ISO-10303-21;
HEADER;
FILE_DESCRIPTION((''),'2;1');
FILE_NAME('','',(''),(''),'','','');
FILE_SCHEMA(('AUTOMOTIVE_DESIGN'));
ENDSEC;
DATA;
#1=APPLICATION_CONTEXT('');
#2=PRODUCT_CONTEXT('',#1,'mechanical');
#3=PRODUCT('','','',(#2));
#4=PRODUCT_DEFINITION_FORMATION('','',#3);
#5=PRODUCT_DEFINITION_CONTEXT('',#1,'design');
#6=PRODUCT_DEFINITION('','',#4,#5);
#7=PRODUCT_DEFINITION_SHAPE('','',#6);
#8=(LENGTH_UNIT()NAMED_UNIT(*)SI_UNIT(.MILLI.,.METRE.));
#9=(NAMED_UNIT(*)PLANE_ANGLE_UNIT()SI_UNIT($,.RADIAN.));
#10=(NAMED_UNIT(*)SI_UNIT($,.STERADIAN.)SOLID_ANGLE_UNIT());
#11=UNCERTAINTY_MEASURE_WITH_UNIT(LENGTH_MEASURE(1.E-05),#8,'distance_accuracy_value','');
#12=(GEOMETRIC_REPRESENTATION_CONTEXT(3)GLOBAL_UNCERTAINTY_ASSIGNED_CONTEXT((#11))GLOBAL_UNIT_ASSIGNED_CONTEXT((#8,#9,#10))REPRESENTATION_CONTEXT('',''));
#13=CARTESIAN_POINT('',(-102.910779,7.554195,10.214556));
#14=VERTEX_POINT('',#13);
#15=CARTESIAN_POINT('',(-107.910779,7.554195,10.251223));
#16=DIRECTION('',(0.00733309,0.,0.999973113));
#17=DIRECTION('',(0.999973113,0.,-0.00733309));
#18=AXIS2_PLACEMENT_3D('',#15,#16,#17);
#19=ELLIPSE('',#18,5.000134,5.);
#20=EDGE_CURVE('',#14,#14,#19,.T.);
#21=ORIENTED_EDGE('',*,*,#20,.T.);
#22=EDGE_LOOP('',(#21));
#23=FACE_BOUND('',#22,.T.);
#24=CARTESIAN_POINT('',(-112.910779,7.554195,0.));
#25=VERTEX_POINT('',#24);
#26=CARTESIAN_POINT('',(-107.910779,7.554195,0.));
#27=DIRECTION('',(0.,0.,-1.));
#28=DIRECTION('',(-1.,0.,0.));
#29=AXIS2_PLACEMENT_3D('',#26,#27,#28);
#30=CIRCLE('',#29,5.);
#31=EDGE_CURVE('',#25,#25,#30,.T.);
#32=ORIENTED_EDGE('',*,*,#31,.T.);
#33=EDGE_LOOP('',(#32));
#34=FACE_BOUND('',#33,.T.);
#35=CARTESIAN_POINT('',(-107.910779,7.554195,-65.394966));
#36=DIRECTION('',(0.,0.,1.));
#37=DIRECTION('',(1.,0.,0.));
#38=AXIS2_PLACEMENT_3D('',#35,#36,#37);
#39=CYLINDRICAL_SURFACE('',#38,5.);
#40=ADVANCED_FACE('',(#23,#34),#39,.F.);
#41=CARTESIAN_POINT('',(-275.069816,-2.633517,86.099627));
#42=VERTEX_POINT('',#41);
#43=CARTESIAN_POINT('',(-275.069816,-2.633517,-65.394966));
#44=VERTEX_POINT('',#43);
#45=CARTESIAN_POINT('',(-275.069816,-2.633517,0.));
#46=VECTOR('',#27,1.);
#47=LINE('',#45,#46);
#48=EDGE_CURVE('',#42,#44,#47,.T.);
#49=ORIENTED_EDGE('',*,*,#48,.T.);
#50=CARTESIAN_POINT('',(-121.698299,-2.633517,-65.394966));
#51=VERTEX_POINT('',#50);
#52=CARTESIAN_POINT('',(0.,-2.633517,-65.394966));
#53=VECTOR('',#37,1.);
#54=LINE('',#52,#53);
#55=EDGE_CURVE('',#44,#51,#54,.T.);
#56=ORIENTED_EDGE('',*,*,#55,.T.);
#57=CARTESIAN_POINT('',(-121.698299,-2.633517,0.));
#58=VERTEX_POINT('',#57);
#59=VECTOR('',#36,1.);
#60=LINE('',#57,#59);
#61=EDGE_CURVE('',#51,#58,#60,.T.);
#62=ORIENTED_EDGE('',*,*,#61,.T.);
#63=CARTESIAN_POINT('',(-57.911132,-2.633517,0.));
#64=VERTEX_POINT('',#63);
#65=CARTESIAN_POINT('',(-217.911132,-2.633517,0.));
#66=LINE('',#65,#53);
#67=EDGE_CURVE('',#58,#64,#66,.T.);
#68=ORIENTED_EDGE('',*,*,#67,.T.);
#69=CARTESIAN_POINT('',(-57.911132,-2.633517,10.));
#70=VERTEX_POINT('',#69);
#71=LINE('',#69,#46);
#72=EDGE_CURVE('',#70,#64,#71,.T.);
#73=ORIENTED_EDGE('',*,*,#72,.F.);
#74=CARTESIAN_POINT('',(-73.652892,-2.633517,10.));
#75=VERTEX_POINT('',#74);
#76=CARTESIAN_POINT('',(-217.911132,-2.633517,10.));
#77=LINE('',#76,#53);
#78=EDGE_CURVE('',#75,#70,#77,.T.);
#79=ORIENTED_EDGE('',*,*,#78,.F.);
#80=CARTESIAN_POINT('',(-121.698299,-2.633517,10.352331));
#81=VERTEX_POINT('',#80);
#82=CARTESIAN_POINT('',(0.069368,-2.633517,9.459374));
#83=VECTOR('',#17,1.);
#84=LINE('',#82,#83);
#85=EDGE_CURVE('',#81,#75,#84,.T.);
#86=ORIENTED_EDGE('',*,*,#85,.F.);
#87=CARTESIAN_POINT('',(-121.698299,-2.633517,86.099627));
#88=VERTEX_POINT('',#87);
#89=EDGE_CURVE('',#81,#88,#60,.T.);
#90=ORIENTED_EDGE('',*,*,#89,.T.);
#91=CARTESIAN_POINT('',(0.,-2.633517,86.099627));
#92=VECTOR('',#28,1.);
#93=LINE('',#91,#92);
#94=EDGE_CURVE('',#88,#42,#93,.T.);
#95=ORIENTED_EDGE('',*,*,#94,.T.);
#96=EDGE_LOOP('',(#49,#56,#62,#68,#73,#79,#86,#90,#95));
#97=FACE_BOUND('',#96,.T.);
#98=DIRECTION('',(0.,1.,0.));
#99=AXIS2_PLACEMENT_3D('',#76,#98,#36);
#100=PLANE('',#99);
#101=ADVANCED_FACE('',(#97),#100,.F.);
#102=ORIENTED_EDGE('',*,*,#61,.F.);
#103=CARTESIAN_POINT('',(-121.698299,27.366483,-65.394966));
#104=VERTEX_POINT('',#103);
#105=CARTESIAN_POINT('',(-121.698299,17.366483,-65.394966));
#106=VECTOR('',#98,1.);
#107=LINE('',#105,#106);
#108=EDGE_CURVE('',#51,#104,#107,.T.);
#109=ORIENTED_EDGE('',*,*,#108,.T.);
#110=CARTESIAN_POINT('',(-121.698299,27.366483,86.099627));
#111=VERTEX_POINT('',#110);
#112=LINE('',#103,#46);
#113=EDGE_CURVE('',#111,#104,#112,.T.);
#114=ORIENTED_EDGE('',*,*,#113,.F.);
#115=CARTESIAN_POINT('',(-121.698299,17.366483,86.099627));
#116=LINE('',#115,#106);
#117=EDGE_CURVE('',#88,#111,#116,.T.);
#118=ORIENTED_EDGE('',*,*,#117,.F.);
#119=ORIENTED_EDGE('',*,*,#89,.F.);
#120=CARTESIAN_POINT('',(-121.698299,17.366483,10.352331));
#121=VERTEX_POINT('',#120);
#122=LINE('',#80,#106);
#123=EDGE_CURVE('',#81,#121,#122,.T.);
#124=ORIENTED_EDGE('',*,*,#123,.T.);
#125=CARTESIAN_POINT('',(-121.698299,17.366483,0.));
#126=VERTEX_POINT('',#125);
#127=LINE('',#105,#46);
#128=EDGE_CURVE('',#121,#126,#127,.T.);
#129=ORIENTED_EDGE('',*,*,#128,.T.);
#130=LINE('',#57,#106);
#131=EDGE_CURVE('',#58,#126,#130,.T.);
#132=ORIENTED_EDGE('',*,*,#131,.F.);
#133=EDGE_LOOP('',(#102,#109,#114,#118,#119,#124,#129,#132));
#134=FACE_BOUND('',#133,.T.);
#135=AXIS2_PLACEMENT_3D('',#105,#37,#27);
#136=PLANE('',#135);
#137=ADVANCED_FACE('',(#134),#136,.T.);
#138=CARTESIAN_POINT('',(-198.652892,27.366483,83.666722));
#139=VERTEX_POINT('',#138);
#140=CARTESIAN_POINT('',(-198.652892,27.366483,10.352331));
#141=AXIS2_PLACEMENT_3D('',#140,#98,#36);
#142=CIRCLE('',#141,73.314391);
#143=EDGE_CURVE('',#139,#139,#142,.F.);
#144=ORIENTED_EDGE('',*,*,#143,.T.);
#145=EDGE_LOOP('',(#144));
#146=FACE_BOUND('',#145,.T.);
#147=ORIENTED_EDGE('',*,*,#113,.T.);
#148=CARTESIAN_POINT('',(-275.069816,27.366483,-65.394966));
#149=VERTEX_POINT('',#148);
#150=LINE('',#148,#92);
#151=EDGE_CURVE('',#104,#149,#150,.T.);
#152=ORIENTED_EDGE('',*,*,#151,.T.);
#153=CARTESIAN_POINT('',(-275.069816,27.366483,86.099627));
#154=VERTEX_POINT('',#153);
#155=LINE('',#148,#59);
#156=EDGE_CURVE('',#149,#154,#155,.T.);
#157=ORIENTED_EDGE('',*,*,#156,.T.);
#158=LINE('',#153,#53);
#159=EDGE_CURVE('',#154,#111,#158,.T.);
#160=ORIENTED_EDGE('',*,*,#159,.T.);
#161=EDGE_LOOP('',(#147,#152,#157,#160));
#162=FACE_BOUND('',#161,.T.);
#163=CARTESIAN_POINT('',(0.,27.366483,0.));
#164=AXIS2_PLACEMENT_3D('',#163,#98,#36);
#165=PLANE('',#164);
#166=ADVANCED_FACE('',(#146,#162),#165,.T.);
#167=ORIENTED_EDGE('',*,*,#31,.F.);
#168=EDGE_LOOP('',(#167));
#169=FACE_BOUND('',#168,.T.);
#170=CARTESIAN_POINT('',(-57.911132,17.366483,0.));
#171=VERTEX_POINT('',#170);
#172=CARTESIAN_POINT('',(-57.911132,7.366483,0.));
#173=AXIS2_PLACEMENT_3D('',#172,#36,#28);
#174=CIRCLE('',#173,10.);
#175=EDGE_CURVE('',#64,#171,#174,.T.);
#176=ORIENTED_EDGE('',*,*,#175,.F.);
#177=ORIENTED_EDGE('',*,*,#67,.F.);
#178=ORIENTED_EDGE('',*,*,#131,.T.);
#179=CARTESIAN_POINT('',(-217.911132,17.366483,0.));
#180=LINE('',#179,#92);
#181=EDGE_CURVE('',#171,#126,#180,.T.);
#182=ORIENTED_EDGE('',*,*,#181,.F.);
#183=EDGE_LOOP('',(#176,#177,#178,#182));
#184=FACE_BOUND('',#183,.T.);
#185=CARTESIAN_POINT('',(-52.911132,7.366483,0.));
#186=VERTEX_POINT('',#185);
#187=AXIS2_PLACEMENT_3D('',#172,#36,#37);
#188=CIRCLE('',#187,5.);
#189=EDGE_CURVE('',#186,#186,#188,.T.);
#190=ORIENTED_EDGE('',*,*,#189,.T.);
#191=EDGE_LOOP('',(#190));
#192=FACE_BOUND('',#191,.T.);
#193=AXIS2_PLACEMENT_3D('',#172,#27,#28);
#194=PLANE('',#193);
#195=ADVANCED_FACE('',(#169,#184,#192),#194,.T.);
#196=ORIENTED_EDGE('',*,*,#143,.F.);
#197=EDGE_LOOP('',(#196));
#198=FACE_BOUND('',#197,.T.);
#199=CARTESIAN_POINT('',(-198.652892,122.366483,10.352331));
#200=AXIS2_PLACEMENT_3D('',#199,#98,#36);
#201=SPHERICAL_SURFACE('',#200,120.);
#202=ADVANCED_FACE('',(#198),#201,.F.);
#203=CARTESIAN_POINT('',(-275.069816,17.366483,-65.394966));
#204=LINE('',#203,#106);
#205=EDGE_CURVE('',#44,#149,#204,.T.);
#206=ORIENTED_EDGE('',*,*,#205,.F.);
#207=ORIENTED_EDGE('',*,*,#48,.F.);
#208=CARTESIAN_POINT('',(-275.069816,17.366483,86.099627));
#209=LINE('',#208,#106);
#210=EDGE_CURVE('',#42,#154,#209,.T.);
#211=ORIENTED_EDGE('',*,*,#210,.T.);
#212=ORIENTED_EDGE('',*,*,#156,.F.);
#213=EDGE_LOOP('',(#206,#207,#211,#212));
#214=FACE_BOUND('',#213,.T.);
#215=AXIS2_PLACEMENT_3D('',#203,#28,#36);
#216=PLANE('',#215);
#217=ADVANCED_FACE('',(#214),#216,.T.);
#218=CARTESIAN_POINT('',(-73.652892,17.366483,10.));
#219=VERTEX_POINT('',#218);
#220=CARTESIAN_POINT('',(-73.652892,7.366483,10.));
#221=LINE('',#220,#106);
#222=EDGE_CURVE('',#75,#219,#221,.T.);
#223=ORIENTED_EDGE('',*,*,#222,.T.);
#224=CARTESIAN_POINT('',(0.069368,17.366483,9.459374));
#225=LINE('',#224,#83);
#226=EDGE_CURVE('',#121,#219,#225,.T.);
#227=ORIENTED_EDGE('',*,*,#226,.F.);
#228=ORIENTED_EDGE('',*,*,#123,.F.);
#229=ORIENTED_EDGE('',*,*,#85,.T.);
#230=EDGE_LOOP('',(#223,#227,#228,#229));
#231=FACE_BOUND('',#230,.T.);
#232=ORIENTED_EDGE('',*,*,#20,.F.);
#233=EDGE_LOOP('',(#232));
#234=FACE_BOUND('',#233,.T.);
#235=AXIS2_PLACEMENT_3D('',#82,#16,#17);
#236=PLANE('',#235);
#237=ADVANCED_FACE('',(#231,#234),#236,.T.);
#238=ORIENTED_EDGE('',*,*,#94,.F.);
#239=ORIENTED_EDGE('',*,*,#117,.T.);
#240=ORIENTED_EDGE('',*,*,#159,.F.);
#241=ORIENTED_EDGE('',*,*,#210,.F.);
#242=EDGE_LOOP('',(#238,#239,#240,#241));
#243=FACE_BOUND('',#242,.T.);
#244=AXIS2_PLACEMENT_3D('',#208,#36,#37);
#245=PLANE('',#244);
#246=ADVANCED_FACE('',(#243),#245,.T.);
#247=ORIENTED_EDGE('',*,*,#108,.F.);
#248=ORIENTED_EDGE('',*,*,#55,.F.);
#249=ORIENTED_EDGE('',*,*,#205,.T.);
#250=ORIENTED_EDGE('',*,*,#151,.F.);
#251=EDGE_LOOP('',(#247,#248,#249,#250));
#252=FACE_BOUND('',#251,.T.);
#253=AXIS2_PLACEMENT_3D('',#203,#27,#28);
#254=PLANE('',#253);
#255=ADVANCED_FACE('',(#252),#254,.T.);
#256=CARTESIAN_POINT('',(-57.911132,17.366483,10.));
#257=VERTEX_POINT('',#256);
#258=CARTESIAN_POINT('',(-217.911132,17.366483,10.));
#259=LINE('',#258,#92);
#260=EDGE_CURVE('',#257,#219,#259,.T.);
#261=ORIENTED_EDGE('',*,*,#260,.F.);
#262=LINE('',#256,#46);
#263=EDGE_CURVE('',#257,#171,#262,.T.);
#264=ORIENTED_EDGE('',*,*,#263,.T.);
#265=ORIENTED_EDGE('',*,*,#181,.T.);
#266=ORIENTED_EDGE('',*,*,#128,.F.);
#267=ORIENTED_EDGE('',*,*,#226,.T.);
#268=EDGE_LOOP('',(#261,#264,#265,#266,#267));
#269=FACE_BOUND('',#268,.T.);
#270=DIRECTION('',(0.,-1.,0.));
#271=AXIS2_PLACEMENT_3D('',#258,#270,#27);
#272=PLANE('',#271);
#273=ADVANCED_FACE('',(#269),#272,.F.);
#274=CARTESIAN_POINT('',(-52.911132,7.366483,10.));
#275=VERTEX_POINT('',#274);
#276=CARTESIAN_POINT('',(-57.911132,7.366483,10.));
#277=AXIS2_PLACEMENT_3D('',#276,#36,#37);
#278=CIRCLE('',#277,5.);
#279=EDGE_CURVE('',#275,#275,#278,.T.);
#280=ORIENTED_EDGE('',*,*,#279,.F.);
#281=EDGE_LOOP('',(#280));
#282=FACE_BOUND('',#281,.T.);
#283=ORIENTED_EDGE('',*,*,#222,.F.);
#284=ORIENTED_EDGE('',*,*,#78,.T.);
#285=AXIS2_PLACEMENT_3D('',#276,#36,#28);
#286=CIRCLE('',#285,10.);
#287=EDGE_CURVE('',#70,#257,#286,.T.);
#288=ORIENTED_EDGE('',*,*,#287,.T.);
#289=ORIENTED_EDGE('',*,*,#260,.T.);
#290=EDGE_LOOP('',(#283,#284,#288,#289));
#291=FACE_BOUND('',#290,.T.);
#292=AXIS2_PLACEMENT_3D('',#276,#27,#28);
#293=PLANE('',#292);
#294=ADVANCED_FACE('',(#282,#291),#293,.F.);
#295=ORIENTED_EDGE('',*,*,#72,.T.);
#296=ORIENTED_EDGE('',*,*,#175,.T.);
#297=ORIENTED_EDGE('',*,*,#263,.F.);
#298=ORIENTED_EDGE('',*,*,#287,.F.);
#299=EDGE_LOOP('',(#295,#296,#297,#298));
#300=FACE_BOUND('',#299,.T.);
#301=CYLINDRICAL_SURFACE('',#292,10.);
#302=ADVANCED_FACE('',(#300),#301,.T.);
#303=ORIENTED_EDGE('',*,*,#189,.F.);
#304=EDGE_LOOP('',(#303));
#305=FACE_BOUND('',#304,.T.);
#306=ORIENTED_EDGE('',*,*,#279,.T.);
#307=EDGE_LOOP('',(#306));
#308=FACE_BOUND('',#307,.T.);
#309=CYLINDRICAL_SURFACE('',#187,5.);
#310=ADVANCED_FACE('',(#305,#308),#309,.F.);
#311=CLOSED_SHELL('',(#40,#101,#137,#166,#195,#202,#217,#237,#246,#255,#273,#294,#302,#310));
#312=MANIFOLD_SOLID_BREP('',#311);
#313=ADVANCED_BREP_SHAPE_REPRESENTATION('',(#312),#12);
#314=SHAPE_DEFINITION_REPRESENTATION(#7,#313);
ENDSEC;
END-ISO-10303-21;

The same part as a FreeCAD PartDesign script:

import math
import FreeCAD as App
import Part
import Sketcher

V = App.Vector
Q = App.Units.Quantity


def add_polygon(sketch, points):
    """Adds a closed chain of lines whose ends are joined by coincident constraints."""
    first, n = sketch.GeometryCount, len(points)
    for a, b in zip(points, points[1:] + points[:1]):
        sketch.addGeometry(Part.LineSegment(App.Vector(*a, 0), App.Vector(*b, 0)), False)
    for i in range(n):
        sketch.addConstraint(Sketcher.Constraint("Coincident", first + i, 2, first + (i + 1) % n, 1))

doc = App.newDocument("Part")
params = doc.addObject("Spreadsheet::Sheet", "Params")
for row, (alias, value) in enumerate([
    ("sketch1_radius", "10 mm"),
    ("sketch1_width", "160 mm"),
    ("pad1_length", "10 mm"),
    ("sketch2_diameter", "10 mm"),
    ("pocket1_length", "10 mm"),
    ("sketch3_width", "250 mm"),
    ("pad2_length", "125 mm"),
    ("sketch4_radius", "120 mm"),
    ("groove_angle", "360 deg"),
    ("sketch5_width", "250 mm"),
    ("pocket2_length", "95 mm"),
    ("sketch6_width", "250 mm"),
    ("pocket3_length", "10 mm"),
    ("sketch7_width", "250 mm"),
    ("sketch8_diameter", "10 mm"),
    ("sketch9_diameter", "10 mm"),
], start=1):
    params.set(f"A{row}", alias)
    params.set(f"B{row}", "=" + value)
    params.setAlias(f"B{row}", alias)

body = doc.addObject("PartDesign::Body", "Body")

sketch1 = body.newObject("Sketcher::SketchObject", "Sketch")
sketch1.AttachmentSupport = (doc.getObject("XY_Plane"), [""])
sketch1.MapMode = "FlatFace"
sketch1.addGeometry([
    Part.LineSegment(V(-58, 17, 0), V(-218, 17, 0)),
    Part.LineSegment(V(-218, 17, 0), V(-218, -3, 0)),
    Part.LineSegment(V(-218, -3, 0), V(-58, -3, 0)),
    Part.ArcOfCircle(Part.Circle(V(-58, 7, 0), V(0, 0, 1), 10), math.radians(-90), math.radians(90)),
], False)
sketch1.addConstraint([
    Sketcher.Constraint("Coincident", 0, 2, 1, 1),
    Sketcher.Constraint("Coincident", 1, 2, 2, 1),
    Sketcher.Constraint("Tangent", 2, 2, 3, 1),
    Sketcher.Constraint("Tangent", 3, 2, 0, 1),
    Sketcher.Constraint("Horizontal", 0),
    Sketcher.Constraint("Vertical", 1),
    Sketcher.Constraint("Horizontal", 2),
    Sketcher.Constraint("Radius", 3, Q("10 mm")),
    Sketcher.Constraint("DistanceX", 0, 2, 0, 1, Q("160 mm")),
    Sketcher.Constraint("DistanceX", 3, 3, -1, 1, Q("57.911132 mm")),
    Sketcher.Constraint("DistanceY", -1, 1, 3, 3, Q("7.366483 mm")),
])
sketch1.setExpression("Constraints[7]", "Params.sketch1_radius")
sketch1.setExpression("Constraints[8]", "Params.sketch1_width")
pad1 = body.newObject("PartDesign::Pad", "Pad")
pad1.Profile = sketch1
pad1.setExpression("Length", "Params.pad1_length")

sketch2 = body.newObject("Sketcher::SketchObject", "Sketch001")
sketch2.AttachmentSupport = (doc.getObject("XY_Plane"), [""])
sketch2.MapMode = "FlatFace"
sketch2.AttachmentOffset = App.Placement(V(0, 0, 10), App.Rotation())
sketch2.addGeometry([
    Part.Circle(V(-58, 7, 0), V(0, 0, 1), 5),
    Part.Circle(V(-8, 7, 0), V(0, 0, 1), 5),
], False)
sketch2.addConstraint([
    Sketcher.Constraint("Equal", 0, 1),
    Sketcher.Constraint("Diameter", 0, Q("10 mm")),
    Sketcher.Constraint("DistanceX", 0, 3, -1, 1, Q("57.911132 mm")),
    Sketcher.Constraint("DistanceY", -1, 1, 1, 3, Q("7.219511 mm")),
    Sketcher.Constraint("DistanceY", -1, 1, 0, 3, Q("7.366483 mm")),
    Sketcher.Constraint("DistanceX", 1, 3, -1, 1, Q("7.911348 mm")),
])
sketch2.setExpression("Constraints[1]", "Params.sketch2_diameter")
pocket1 = body.newObject("PartDesign::Pocket", "Pocket")
pocket1.Profile = sketch2
pocket1.setExpression("Length", "Params.pocket1_length")

sketch3 = body.newObject("Sketcher::SketchObject", "Sketch002")
sketch3.AttachmentSupport = (doc.getObject("XZ_Plane"), [""])
sketch3.MapMode = "FlatFace"
sketch3.AttachmentOffset = App.Placement(V(0, 0, 2.633517), App.Rotation())
add_polygon(sketch3, [(-324, 135), (-324, -115), (-74, -115), (-74, 135)])
sketch3.addConstraint([
    Sketcher.Constraint("Vertical", 0),
    Sketcher.Constraint("Horizontal", 1),
    Sketcher.Constraint("Vertical", 2),
    Sketcher.Constraint("Horizontal", 3),
    Sketcher.Constraint("Equal", 3, 0),
    Sketcher.Constraint("DistanceX", 1, 1, 1, 2, Q("250 mm")),
    Sketcher.Constraint("DistanceY", 0, 2, -1, 1, Q("114.647669 mm")),
    Sketcher.Constraint("DistanceX", 0, 2, -1, 1, Q("323.652892 mm")),
])
sketch3.setExpression("Constraints[9]", "Params.sketch3_width")
pad2 = body.newObject("PartDesign::Pad", "Pad001")
pad2.Profile = sketch3
pad2.setExpression("Length", "Params.pad2_length")
pad2.Reversed = True

sketch4 = body.newObject("Sketcher::SketchObject", "Sketch003")
sketch4.AttachmentSupport = (doc.getObject("XZ_Plane"), [""])
sketch4.MapMode = "FlatFace"
sketch4.AttachmentOffset = App.Placement(V(0, 0, -122.366483), App.Rotation())
sketch4.addGeometry([
    Part.LineSegment(V(-114, 95, 0), V(-284, -75, 0)),
    Part.ArcOfCircle(Part.Circle(V(-199, 10, 0), V(0, 0, 1), 120), math.radians(45), math.radians(225)),
], False)
sketch4.addGeometry(Part.LineSegment(V(-284, -75, 0), V(-114, 95, 0)), True)
sketch4.addConstraint([
    Sketcher.Constraint("Coincident", 0, 1, 1, 1),
    Sketcher.Constraint("Coincident", 1, 2, 0, 2),
    Sketcher.Constraint("Coincident", 2, 1, 1, 2),
    Sketcher.Constraint("Coincident", 2, 2, 0, 1),
    Sketcher.Constraint("Radius", 1, Q("120 mm")),
    Sketcher.Constraint("Angle", 0, Q("-135 deg")),
    Sketcher.Constraint("DistanceY", -1, 1, 1, 3, Q("10.352331 mm")),
    Sketcher.Constraint("DistanceX", 0, 1, -1, 1, Q("113.800079 mm")),
    Sketcher.Constraint("DistanceX", 1, 3, -1, 1, Q("198.652892 mm")),
])
sketch4.setExpression("Constraints[4]", "Params.sketch4_radius")
groove = body.newObject("PartDesign::Groove", "Groove")
groove.Profile = sketch4
groove.ReferenceAxis = (sketch4, ["Axis0"])
groove.setExpression("Angle", "Params.groove_angle")

sketch5 = body.newObject("Sketcher::SketchObject", "Sketch004")
sketch5.AttachmentSupport = (doc.getObject("XZ_Plane"), [""])
sketch5.MapMode = "FlatFace"
sketch5.AttachmentOffset = App.Placement(V(0, 0, -122.366483), App.Rotation())
add_polygon(sketch5, [(-324, -115), (-324, 135), (-74, 135), (-74, -115)])
sketch5.addConstraint([
    Sketcher.Constraint("Vertical", 0),
    Sketcher.Constraint("Horizontal", 1),
    Sketcher.Constraint("Vertical", 2),
    Sketcher.Constraint("Horizontal", 3),
    Sketcher.Constraint("Equal", 3, 0),
    Sketcher.Constraint("DistanceX", 1, 1, 1, 2, Q("250 mm")),
    Sketcher.Constraint("DistanceY", -1, 1, 0, 2, Q("135.352331 mm")),
    Sketcher.Constraint("DistanceX", 0, 2, -1, 1, Q("323.652892 mm")),
])
sketch5.setExpression("Constraints[9]", "Params.sketch5_width")
pocket2 = body.newObject("PartDesign::Pocket", "Pocket001")
pocket2.Profile = sketch5
pocket2.setExpression("Length", "Params.pocket2_length")
pocket2.Reversed = True

sketch6 = body.newObject("Sketcher::SketchObject", "Sketch005")
sketch6.AttachmentSupport = (doc.getObject("XZ_Plane"), [""])
sketch6.MapMode = "FlatFace"
sketch6.AttachmentOffset = App.Placement(V(0, 0, -27.366483), App.Rotation())
add_polygon(sketch6, [(-324, -115), (-324, 135), (-74, 135), (-74, -115)])
add_polygon(sketch6, [(-122, 86), (-275, 86), (-275, -65), (-122, -65)])
sketch6.addConstraint([
    Sketcher.Constraint("Vertical", 0),
    Sketcher.Constraint("Horizontal", 1),
    Sketcher.Constraint("Vertical", 2),
    Sketcher.Constraint("Horizontal", 3),
    Sketcher.Constraint("Horizontal", 4),
    Sketcher.Constraint("Vertical", 5),
    Sketcher.Constraint("Horizontal", 6),
    Sketcher.Constraint("Vertical", 7),
    Sketcher.Constraint("Equal", 3, 0),
    Sketcher.Constraint("DistanceX", 1, 1, 1, 2, Q("250 mm")),
    Sketcher.Constraint("DistanceX", 6, 2, -1, 1, Q("121.698299 mm")),
    Sketcher.Constraint("DistanceX", 4, 2, 4, 1, Q("153.371517 mm")),
    Sketcher.Constraint("DistanceY", 5, 2, 5, 1, Q("151.494593 mm")),
    Sketcher.Constraint("DistanceY", -1, 1, 0, 2, Q("135.352331 mm")),
    Sketcher.Constraint("DistanceX", 0, 2, -1, 1, Q("323.652892 mm")),
    Sketcher.Constraint("DistanceY", -1, 1, 4, 2, Q("86.099627 mm")),
])
sketch6.setExpression("Constraints[17]", "Params.sketch6_width")
pocket3 = body.newObject("PartDesign::Pocket", "Pocket002")
pocket3.Profile = sketch6
pocket3.setExpression("Length", "Params.pocket3_length")
pocket3.Reversed = True

sketch7 = body.newObject("Sketcher::SketchObject", "Sketch006")
sketch7.AttachmentSupport = (doc.getObject("XZ_Plane"), [""])
sketch7.MapMode = "FlatFace"
sketch7.AttachmentOffset = App.Placement(V(0, 0, -17.366483), App.Rotation())
add_polygon(sketch7, [(-275, 86), (-275, -65), (-122, -65), (-122, 0), (-74, 0), (-74, -115), (-324, -115), (-324, 135), (-74, 135), (-74, 10), (-122, 10), (-122, 86)])
sketch7.addConstraint([
    Sketcher.Constraint("Vertical", 0),
    Sketcher.Constraint("Horizontal", 1),
    Sketcher.Constraint("Vertical", 2),
    Sketcher.Constraint("Horizontal", 3),
    Sketcher.Constraint("Vertical", 4),
    Sketcher.Constraint("Horizontal", 5),
    Sketcher.Constraint("Vertical", 6),
    Sketcher.Constraint("Horizontal", 7),
    Sketcher.Constraint("Vertical", 8),
    Sketcher.Constraint("Vertical", 10),
    Sketcher.Constraint("Horizontal", 11),
    Sketcher.Constraint("PointOnObject", 2, 2, -1),
    Sketcher.Constraint("Vertical", 4, 2, 7, 2),
    Sketcher.Constraint("Vertical", 2, 2, 9, 2),
    Sketcher.Constraint("Equal", 7, 6),
    Sketcher.Constraint("DistanceX", 5, 2, 5, 1, Q("250 mm")),
    Sketcher.Constraint("DistanceY", -1, 1, 8, 2, Q("10 mm")),
    Sketcher.Constraint("DistanceY", 4, 2, 9, 2, Q("125 mm")),
    Sketcher.Constraint("Distance", 9, Q("48.046698 mm")),
    Sketcher.Constraint("DistanceY", 4, 2, 4, 1, Q("114.647669 mm")),
    Sketcher.Constraint("DistanceX", 1, 2, -1, 1, Q("121.698299 mm")),
    Sketcher.Constraint("DistanceX", 1, 1, 1, 2, Q("153.371517 mm")),
    Sketcher.Constraint("DistanceY", 0, 2, 0, 1, Q("151.494593 mm")),
    Sketcher.Constraint("DistanceY", 2, 1, 2, 2, Q("65.394966 mm")),
])
sketch7.setExpression("Constraints[27]", "Params.sketch7_width")
pocket4 = body.newObject("PartDesign::Pocket", "Pocket003")
pocket4.Profile = sketch7
pocket4.Type = "ThroughAll"
pocket4.Reversed = True

sketch8 = body.newObject("Sketcher::SketchObject", "Sketch007")
sketch8.AttachmentSupport = (doc.getObject("XY_Plane"), [""])
sketch8.MapMode = "FlatFace"
sketch8.AttachmentOffset = App.Placement(V(0, 0, 10), App.Rotation())
sketch8.addGeometry(Part.Circle(V(-108, 8, 0), V(0, 0, 1), 5), False)
sketch8.addConstraint([
    Sketcher.Constraint("Diameter", 0, Q("10 mm")),
    Sketcher.Constraint("DistanceX", 0, 3, -1, 1, Q("107.910779 mm")),
    Sketcher.Constraint("DistanceY", -1, 1, 0, 3, Q("7.554195 mm")),
])
sketch8.setExpression("Constraints[0]", "Params.sketch8_diameter")
pocket5 = body.newObject("PartDesign::Pocket", "Pocket004")
pocket5.Profile = sketch8
pocket5.Type = "ThroughAll"

sketch9 = body.newObject("Sketcher::SketchObject", "Sketch008")
sketch9.AttachmentSupport = (doc.getObject("XY_Plane"), [""])
sketch9.MapMode = "FlatFace"
sketch9.AttachmentOffset = App.Placement(V(0, 0, 10), App.Rotation())
sketch9.addGeometry(Part.Circle(V(-108, 8, 0), V(0, 0, 1), 5), False)
sketch9.addConstraint([
    Sketcher.Constraint("Diameter", 0, Q("10 mm")),
    Sketcher.Constraint("DistanceX", 0, 3, -1, 1, Q("107.910779 mm")),
    Sketcher.Constraint("DistanceY", -1, 1, 0, 3, Q("7.554195 mm")),
])
sketch9.setExpression("Constraints[0]", "Params.sketch9_diameter")
pocket6 = body.newObject("PartDesign::Pocket", "Pocket005")
pocket6.Profile = sketch9
pocket6.Type = "ThroughAll"
pocket6.Reversed = True

doc.recompute()
